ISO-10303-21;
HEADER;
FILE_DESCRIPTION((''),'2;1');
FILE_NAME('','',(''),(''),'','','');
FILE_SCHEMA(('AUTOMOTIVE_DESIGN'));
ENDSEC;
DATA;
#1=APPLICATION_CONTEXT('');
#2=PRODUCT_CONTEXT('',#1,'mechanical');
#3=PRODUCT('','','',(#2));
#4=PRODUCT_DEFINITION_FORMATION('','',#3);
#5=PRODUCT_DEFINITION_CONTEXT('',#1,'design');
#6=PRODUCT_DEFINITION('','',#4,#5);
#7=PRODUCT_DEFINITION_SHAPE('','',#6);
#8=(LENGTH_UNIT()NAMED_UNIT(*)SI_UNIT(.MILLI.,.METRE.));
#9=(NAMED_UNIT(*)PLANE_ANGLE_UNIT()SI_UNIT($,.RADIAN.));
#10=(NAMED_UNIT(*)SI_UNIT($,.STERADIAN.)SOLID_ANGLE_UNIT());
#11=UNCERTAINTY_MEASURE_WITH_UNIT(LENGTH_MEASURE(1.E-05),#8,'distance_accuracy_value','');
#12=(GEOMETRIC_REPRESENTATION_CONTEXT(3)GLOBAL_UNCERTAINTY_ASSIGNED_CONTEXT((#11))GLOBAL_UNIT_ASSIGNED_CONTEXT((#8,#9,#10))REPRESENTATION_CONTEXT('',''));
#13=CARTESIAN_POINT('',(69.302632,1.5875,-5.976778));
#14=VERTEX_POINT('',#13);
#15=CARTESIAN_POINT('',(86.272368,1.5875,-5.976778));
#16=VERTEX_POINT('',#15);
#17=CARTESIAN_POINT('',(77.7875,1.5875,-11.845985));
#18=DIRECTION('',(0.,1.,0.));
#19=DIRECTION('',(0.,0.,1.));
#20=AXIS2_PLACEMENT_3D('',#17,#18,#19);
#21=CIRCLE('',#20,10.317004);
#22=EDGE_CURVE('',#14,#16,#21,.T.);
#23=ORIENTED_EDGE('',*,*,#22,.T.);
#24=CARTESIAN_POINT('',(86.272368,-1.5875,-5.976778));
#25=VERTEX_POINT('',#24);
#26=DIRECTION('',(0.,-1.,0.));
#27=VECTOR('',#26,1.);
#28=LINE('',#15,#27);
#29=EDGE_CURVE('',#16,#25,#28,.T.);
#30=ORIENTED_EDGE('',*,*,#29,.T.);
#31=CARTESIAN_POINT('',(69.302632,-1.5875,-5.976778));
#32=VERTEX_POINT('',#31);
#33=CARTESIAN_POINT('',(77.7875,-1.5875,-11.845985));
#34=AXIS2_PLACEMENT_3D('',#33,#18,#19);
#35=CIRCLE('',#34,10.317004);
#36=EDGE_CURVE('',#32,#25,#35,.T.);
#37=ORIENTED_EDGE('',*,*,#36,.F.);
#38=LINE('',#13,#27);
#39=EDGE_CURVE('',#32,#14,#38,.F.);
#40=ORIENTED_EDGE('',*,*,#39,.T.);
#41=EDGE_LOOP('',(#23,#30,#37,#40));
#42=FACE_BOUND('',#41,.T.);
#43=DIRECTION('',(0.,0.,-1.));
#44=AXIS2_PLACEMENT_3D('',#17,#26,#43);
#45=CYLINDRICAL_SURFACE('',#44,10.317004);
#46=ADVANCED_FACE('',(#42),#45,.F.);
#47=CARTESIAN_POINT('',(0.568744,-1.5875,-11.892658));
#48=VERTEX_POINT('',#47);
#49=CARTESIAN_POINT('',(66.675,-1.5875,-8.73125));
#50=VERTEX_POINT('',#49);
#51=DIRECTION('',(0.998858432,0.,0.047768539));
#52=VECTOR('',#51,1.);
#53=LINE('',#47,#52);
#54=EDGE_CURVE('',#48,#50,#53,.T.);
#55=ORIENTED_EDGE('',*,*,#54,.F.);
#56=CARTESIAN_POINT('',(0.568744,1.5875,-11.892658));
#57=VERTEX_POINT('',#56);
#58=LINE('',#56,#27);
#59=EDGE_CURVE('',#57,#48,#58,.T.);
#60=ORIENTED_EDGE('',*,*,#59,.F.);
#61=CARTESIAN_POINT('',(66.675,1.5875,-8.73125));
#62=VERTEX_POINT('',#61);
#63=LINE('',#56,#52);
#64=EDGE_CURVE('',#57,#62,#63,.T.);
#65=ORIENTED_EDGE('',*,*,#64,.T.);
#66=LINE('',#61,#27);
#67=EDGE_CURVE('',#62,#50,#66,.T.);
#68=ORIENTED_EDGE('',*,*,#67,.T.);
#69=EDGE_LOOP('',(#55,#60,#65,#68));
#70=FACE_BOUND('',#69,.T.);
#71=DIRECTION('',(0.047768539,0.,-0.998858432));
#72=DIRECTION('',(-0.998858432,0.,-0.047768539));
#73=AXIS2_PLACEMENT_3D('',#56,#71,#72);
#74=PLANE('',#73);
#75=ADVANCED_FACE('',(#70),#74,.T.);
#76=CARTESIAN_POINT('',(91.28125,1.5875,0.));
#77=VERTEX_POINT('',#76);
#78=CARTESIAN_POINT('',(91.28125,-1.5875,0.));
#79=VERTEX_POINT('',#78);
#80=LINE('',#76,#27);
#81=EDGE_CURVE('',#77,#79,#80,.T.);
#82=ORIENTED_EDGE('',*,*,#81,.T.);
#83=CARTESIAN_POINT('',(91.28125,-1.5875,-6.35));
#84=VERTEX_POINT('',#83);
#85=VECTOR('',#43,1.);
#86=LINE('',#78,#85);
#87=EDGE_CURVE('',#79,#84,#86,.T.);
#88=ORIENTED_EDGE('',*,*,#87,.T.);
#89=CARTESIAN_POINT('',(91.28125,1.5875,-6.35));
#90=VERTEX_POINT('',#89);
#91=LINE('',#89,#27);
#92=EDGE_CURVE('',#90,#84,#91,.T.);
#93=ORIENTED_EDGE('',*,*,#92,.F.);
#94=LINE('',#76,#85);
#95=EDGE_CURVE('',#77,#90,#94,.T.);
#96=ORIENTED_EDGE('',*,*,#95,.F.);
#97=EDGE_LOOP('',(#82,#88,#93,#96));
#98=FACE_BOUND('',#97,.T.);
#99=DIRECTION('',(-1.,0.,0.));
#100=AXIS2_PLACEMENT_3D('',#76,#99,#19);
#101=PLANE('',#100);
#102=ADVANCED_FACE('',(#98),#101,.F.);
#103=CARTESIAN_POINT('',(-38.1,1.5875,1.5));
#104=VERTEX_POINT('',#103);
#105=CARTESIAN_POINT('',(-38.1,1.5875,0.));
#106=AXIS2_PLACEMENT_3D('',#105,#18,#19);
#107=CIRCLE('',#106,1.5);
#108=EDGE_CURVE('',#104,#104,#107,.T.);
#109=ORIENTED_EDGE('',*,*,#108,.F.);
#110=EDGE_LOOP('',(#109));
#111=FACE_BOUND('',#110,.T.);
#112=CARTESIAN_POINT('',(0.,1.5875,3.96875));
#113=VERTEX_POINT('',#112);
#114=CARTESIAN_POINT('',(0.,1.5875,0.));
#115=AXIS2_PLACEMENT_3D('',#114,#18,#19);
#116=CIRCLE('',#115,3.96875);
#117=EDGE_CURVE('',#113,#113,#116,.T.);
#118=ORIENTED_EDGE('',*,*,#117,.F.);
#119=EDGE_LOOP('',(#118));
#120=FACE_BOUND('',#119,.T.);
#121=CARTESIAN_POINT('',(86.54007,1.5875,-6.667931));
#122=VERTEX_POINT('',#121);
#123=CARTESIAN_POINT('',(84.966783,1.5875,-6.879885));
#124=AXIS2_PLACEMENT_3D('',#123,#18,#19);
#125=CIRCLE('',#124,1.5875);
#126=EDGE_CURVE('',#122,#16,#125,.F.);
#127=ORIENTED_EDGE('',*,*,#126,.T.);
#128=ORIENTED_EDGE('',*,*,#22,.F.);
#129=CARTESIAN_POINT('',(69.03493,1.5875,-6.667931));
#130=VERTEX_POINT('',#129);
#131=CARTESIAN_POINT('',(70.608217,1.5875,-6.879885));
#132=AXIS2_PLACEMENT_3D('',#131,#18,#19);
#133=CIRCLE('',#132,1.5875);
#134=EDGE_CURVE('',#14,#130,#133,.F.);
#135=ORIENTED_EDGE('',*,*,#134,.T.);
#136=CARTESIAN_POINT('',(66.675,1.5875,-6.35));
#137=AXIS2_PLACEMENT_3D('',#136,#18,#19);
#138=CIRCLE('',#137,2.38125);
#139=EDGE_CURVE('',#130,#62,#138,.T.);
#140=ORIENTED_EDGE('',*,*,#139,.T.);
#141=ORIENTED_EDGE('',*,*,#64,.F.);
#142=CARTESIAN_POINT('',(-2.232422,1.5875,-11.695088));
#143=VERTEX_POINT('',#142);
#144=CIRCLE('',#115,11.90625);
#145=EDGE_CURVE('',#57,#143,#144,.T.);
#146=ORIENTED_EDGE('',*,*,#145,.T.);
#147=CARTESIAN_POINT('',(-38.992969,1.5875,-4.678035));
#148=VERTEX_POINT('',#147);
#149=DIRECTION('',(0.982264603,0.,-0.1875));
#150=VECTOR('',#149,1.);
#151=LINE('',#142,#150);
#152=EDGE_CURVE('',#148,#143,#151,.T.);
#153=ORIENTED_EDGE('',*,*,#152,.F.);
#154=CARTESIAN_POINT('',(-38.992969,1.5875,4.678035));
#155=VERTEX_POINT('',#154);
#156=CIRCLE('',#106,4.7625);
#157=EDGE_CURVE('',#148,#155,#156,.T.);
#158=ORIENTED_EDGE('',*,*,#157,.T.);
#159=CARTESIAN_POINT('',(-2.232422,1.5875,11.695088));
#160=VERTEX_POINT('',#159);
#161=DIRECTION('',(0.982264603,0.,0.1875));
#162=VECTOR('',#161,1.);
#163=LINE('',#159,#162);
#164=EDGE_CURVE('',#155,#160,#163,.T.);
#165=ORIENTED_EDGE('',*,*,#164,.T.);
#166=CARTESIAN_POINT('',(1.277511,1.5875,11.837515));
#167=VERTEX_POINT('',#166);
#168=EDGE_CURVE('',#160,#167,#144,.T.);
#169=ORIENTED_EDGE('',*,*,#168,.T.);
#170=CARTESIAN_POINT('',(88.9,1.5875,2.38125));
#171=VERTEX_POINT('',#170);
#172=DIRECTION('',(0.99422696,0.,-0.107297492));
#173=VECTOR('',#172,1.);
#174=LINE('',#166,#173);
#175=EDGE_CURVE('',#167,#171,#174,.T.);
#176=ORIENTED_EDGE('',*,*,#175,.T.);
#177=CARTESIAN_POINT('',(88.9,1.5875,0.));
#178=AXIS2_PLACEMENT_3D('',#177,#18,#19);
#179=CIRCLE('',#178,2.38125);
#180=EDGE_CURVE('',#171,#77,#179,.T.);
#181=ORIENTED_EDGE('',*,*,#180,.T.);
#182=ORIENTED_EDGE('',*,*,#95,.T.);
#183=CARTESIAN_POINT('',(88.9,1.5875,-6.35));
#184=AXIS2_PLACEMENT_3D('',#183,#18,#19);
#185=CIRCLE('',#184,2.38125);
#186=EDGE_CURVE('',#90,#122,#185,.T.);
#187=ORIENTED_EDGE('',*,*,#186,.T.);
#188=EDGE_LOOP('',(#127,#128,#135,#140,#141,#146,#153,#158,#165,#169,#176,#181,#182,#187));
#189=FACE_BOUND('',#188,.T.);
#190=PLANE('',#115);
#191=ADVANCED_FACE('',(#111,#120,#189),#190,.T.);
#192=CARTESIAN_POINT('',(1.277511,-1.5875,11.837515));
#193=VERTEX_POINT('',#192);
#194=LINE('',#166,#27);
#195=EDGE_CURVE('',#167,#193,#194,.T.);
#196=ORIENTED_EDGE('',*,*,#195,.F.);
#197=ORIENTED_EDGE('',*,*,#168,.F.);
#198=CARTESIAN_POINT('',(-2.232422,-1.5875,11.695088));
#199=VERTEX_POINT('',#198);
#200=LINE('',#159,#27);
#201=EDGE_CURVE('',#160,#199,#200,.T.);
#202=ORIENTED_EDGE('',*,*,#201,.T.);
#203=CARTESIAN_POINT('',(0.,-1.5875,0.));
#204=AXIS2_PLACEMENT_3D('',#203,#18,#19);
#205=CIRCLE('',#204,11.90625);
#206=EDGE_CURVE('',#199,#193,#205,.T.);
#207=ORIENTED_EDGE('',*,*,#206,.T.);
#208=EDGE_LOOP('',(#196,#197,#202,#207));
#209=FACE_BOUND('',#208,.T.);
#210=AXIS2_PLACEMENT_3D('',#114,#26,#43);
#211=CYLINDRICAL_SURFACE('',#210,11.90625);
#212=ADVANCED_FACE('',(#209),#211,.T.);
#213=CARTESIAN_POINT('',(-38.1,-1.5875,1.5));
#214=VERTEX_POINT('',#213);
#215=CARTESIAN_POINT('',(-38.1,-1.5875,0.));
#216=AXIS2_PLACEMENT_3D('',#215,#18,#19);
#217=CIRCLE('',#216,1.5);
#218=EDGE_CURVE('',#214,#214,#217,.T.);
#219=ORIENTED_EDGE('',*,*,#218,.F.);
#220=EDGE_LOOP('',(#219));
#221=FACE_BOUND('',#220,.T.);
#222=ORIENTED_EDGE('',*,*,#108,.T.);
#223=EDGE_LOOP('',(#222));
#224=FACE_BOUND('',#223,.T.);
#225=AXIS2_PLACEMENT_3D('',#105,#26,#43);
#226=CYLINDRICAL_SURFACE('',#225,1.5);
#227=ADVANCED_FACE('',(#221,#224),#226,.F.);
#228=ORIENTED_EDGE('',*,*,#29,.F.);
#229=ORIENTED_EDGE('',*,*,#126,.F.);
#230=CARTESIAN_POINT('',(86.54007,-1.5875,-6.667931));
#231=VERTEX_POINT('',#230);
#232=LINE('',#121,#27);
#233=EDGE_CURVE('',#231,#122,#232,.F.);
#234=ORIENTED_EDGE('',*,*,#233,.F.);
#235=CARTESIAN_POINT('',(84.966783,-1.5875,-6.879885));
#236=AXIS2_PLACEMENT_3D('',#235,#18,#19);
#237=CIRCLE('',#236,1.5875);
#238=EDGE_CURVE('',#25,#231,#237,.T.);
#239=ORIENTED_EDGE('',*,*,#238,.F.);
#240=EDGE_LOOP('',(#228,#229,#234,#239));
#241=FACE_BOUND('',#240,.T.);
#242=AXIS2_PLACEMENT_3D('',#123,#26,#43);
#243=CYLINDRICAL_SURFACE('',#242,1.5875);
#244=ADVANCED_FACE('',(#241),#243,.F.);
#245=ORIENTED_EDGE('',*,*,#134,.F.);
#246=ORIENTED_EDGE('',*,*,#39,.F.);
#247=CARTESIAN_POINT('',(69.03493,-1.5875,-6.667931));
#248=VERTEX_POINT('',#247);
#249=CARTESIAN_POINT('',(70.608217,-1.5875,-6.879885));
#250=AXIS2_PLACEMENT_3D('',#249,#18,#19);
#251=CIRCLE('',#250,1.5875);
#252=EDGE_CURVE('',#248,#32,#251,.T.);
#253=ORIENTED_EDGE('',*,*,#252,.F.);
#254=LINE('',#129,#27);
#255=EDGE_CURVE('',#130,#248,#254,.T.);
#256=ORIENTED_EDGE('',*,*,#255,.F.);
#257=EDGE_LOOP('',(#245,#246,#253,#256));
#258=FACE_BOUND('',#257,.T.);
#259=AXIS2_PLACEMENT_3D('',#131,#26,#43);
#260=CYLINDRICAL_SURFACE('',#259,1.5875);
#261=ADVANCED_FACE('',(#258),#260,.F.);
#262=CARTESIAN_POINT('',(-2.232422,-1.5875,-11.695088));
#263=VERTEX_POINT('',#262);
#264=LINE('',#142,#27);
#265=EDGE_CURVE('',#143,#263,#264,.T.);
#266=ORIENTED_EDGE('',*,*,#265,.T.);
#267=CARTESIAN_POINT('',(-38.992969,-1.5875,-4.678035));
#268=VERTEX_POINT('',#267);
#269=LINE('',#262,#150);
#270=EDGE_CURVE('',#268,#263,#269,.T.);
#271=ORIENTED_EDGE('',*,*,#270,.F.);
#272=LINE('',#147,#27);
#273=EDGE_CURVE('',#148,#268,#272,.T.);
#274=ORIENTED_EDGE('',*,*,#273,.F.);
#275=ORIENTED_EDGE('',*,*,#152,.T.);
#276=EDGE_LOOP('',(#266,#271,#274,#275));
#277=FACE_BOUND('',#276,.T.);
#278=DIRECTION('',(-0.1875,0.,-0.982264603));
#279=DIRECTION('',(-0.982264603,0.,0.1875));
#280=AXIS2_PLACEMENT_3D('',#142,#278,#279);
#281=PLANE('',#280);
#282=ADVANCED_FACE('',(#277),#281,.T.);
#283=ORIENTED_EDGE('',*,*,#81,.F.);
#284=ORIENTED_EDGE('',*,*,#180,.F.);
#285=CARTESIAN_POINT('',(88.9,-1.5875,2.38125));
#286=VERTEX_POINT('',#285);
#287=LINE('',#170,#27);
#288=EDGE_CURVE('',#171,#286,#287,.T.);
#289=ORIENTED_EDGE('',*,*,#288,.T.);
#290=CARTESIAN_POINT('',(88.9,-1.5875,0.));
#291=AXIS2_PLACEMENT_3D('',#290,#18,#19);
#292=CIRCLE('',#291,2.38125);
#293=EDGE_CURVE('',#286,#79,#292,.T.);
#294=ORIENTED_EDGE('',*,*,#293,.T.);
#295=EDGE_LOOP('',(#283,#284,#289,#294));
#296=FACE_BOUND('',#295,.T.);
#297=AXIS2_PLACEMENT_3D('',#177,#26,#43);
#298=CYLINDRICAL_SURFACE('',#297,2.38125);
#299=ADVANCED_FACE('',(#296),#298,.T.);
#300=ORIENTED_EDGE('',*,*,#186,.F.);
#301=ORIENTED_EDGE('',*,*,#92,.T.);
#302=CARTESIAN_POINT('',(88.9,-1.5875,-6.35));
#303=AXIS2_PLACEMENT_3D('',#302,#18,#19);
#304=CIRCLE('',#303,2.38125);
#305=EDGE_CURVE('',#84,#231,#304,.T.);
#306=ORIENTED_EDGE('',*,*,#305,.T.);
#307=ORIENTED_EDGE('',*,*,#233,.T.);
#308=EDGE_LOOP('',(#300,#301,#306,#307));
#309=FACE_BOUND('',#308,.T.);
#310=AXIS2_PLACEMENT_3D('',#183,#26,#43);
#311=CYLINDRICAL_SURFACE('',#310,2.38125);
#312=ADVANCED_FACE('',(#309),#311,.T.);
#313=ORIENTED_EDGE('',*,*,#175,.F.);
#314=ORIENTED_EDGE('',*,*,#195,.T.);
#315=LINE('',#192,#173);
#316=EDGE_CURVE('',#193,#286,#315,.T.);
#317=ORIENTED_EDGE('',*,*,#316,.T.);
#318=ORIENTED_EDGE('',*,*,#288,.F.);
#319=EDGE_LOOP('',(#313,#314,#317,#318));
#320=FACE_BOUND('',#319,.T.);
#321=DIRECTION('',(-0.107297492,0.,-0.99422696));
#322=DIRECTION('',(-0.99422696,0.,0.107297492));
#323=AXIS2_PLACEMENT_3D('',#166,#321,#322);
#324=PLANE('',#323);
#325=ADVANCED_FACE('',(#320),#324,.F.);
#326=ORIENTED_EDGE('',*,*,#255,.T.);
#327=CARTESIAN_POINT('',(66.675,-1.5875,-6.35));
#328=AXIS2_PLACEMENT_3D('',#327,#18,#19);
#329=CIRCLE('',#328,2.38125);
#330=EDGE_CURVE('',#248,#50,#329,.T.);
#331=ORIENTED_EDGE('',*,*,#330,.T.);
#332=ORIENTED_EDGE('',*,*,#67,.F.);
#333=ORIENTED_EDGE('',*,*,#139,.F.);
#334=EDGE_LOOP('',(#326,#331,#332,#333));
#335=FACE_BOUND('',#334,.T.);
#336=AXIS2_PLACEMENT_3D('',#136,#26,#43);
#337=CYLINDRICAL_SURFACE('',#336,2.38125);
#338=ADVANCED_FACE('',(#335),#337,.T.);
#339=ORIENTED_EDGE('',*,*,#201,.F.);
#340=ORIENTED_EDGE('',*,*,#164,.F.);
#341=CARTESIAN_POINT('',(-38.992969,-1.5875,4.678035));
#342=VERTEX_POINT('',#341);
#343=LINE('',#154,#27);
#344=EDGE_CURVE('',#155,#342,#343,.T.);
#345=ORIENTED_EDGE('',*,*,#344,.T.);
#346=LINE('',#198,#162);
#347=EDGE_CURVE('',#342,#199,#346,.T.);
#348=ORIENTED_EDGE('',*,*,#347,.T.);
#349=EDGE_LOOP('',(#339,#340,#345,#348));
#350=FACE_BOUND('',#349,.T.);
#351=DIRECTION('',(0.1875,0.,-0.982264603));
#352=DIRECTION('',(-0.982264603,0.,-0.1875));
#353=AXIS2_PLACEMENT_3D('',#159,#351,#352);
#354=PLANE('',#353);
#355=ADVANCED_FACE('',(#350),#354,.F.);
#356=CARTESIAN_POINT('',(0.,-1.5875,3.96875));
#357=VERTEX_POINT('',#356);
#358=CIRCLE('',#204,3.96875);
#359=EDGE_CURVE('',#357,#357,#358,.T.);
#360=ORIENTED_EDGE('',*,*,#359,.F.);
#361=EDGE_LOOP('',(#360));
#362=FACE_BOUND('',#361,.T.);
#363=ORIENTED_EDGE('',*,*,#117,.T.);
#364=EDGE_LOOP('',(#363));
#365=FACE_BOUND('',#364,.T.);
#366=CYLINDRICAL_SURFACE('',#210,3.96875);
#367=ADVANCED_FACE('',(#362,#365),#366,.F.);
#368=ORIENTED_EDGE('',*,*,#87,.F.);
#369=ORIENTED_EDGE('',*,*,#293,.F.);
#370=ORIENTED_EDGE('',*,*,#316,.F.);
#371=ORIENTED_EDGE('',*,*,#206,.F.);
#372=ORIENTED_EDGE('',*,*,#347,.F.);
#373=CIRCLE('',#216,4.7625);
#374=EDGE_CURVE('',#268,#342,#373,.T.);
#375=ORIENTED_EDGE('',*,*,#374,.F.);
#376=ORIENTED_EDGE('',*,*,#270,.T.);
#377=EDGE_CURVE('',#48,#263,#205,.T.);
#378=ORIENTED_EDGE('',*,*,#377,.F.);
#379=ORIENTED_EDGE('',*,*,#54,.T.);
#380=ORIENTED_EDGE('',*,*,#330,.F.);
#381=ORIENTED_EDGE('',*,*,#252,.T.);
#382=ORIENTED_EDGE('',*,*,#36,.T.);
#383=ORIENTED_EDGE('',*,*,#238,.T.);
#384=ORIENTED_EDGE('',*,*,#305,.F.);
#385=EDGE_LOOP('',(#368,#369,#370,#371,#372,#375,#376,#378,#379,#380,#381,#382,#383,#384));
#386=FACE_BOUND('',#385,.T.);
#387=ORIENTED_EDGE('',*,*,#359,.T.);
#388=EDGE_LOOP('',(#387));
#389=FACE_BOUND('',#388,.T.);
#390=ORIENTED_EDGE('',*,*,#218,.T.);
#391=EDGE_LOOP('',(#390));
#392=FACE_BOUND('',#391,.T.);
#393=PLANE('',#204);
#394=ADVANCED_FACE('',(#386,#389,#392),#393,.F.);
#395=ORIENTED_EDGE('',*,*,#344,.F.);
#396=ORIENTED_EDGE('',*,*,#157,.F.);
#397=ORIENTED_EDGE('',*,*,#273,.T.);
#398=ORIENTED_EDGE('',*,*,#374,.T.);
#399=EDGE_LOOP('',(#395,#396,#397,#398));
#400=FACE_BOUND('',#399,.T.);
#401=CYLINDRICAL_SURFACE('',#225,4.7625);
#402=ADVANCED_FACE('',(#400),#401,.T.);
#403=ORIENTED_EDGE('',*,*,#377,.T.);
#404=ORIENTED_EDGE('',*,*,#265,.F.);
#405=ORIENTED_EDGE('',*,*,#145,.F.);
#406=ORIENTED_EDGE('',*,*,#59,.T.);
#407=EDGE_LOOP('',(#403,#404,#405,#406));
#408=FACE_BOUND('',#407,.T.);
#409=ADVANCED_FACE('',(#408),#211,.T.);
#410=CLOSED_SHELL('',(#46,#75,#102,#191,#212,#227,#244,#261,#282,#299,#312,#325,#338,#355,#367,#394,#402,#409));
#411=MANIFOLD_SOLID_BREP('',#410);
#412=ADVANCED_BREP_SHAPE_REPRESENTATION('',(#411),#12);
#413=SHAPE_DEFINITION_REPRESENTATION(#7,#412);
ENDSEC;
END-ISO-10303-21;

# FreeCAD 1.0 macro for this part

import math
import FreeCAD as App
import Part
import Sketcher
from FreeCAD import Vector
Q = App.Units.Quantity


def edges_at(feature, points):
    """Names of the edges that pass closest to the given points."""
    edges = feature.Shape.Edges
    near = lambda p: min(range(len(edges)), key=lambda i: edges[i].distToShape(Part.Vertex(*p))[0])
    return sorted({f"Edge{near(p) + 1}" for p in points})

doc = App.newDocument("Part")
body = doc.addObject("PartDesign::Body", "Body")

sketch1 = body.newObject("Sketcher::SketchObject", "Sketch")
sketch1.AttachmentSupport = (doc.getObject("XZ_Plane"), [""])
sketch1.MapMode = "FlatFace"
sketch1.addGeometry([
    Part.LineSegment(Vector(-2.2, -11.7, 0), Vector(-39, -4.7, 0)),
    Part.ArcOfCircle(Part.Circle(Vector(-38.1, 0, 0), Vector(0, 0, 1), 4.8), math.radians(101), math.radians(259)),
    Part.LineSegment(Vector(-39, 4.7, 0), Vector(-2.2, 11.7, 0)),
    Part.ArcOfCircle(Part.Circle(Vector(0, 0, 0), Vector(0, 0, 1), 11.9), math.radians(83.84), math.radians(100.81)),
    Part.LineSegment(Vector(1.3, 11.8, 0), Vector(88.9, 2.4, 0)),
    Part.ArcOfCircle(Part.Circle(Vector(88.9, 0, 0), Vector(0, 0, 1), 2.4), math.radians(0), math.radians(90)),
    Part.LineSegment(Vector(91.3, 0, 0), Vector(91.3, -6.3, 0)),
    Part.ArcOfCircle(Part.Circle(Vector(88.9, -6.3, 0), Vector(0, 0, 1), 2.4), math.radians(180), math.radians(360)),
    Part.ArcOfCircle(Part.Circle(Vector(77.8, -11.8, 0), Vector(0, 0, 1), 10.3), math.radians(32), math.radians(148)),
    Part.ArcOfCircle(Part.Circle(Vector(66.7, -6.4, 0), Vector(0, 0, 1), 2.4), math.radians(-90), math.radians(0)),
    Part.LineSegment(Vector(66.7, -8.7, 0), Vector(0.6, -11.9, 0)),
    Part.ArcOfCircle(Part.Circle(Vector(0, 0, 0), Vector(0, 0, 1), 11.9), math.radians(-100.81), math.radians(-87.26)),
    Part.Circle(Vector(-38.1, 0, 0), Vector(0, 0, 1), 1.5),
    Part.Circle(Vector(0, 0, 0), Vector(0, 0, 1), 4),
], False)
sketch1.addConstraint([
    Sketcher.Constraint("Tangent", 0, 2, 1, 2),
    Sketcher.Constraint("Tangent", 1, 1, 2, 1),
    Sketcher.Constraint("Tangent", 2, 2, 3, 2),
    Sketcher.Constraint("Tangent", 3, 1, 4, 1),
    Sketcher.Constraint("Coincident", 4, 2, 5, 2),
    Sketcher.Constraint("Tangent", 5, 1, 6, 1),
    Sketcher.Constraint("Tangent", 6, 2, 7, 2),
    Sketcher.Constraint("Coincident", 7, 1, 8, 1),
    Sketcher.Constraint("Coincident", 8, 2, 9, 2),
    Sketcher.Constraint("Coincident", 9, 1, 10, 1),
    Sketcher.Constraint("Tangent", 10, 2, 11, 2),
    Sketcher.Constraint("Tangent", 11, 1, 0, 1),
    Sketcher.Constraint("Vertical", 6),
    Sketcher.Constraint("Coincident", 3, 3, -1, 1),
    Sketcher.Constraint("Coincident", 11, 3, -1, 1),
    Sketcher.Constraint("Coincident", 13, 3, -1, 1),
    Sketcher.Constraint("Coincident", 12, 3, 1, 3),
    Sketcher.Constraint("Equal", 5, 7),
    Sketcher.Constraint("Equal", 7, 9),
    Sketcher.Constraint("Equal", 3, 11),
    Sketcher.Constraint("PointOnObject", 1, 3, -1),
    Sketcher.Constraint("PointOnObject", 5, 3, -1),
    Sketcher.Constraint("Horizontal", 7, 3, 9, 3),
    Sketcher.Constraint("Horizontal", 6, 2, 7, 1),
    Sketcher.Constraint("Horizontal", 7, 1, 8, 2),
    Sketcher.Constraint("Vertical", 7, 3, 4, 2),
    Sketcher.Constraint("Diameter", 13, Q("0.3125 in")),
    Sketcher.Constraint("Radius", 1, Q("0.1875 in")),
    Sketcher.Constraint("Radius", 3, Q("0.46875 in")),
    Sketcher.Constraint("Radius", 5, Q("0.09375 in")),
    Sketcher.Constraint("DistanceX", 1, 3, 5, 3, Q("5 in")),
    Sketcher.Constraint("DistanceY", 6, 2, 6, 1, Q("0.25 in")),
    Sketcher.Constraint("DistanceX", 1, 3, -1, 1, Q("1.5 in")),
    Sketcher.Constraint("Diameter", 12, 3.0),
    Sketcher.Constraint("DistanceX", -1, 1, 8, 3, Q("3.0625 in")),
    Sketcher.Constraint("DistanceX", -1, 1, 9, 1, Q("2.625 in")),
    Sketcher.Constraint("Radius", 8, 10.317004),
])
pad1 = body.newObject("PartDesign::Pad", "Pad")
pad1.Profile = sketch1
pad1.Length = Q("0.125 in")
pad1.Midplane = True
doc.recompute()

fillet = body.newObject("PartDesign::Fillet", "Fillet")
fillet.Base = (pad1, edges_at(pad1, [(69.056, 0, -6.35), (86.519, 0, -6.35)]))
fillet.Radius = Q("0.0625 in")

doc.recompute()
